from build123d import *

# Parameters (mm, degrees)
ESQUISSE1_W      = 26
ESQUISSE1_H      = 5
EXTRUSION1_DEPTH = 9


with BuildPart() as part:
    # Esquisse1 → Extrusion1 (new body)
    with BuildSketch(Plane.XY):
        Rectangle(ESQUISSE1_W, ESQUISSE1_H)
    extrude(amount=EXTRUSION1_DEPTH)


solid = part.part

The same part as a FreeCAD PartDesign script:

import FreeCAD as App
import Part
import Sketcher
Q = App.Units.Quantity

doc = App.newDocument("Part")
body = doc.addObject("PartDesign::Body", "Body")

# Sketch on XY plane
sketch1 = body.newObject("Sketcher::SketchObject", "Sketch")
sketch1.AttachmentSupport = (doc.getObject("XY_Plane"), [""])
sketch1.MapMode = "FlatFace"
sketch1.addGeometry([
    Part.LineSegment(App.Vector(-13, 2, 0), App.Vector(-13, -2, 0)),
    Part.LineSegment(App.Vector(-13, -2, 0), App.Vector(13, -2, 0)),
    Part.LineSegment(App.Vector(13, -2, 0), App.Vector(13, 2, 0)),
    Part.LineSegment(App.Vector(13, 2, 0), App.Vector(-13, 2, 0)),
], False)
sketch1.addConstraint([
    Sketcher.Constraint("Coincident", 0, 2, 1, 1),
    Sketcher.Constraint("Coincident", 1, 2, 2, 1),
    Sketcher.Constraint("Coincident", 2, 2, 3, 1),
    Sketcher.Constraint("Coincident", 3, 2, 0, 1),
    Sketcher.Constraint("Vertical", 0),
    Sketcher.Constraint("Horizontal", 1),
    Sketcher.Constraint("Vertical", 2),
    Sketcher.Constraint("Horizontal", 3),
    Sketcher.Constraint("Symmetric", 0, 2, 2, 2, -1, 1),
    Sketcher.Constraint("DistanceX", 1, 1, 1, 2, Q("26 mm")),
    Sketcher.Constraint("DistanceY", 0, 2, 0, 1, Q("5 mm")),
])
pad1 = body.newObject("PartDesign::Pad", "Pad")
pad1.Profile = sketch1
pad1.Length = 9

doc.recompute()
